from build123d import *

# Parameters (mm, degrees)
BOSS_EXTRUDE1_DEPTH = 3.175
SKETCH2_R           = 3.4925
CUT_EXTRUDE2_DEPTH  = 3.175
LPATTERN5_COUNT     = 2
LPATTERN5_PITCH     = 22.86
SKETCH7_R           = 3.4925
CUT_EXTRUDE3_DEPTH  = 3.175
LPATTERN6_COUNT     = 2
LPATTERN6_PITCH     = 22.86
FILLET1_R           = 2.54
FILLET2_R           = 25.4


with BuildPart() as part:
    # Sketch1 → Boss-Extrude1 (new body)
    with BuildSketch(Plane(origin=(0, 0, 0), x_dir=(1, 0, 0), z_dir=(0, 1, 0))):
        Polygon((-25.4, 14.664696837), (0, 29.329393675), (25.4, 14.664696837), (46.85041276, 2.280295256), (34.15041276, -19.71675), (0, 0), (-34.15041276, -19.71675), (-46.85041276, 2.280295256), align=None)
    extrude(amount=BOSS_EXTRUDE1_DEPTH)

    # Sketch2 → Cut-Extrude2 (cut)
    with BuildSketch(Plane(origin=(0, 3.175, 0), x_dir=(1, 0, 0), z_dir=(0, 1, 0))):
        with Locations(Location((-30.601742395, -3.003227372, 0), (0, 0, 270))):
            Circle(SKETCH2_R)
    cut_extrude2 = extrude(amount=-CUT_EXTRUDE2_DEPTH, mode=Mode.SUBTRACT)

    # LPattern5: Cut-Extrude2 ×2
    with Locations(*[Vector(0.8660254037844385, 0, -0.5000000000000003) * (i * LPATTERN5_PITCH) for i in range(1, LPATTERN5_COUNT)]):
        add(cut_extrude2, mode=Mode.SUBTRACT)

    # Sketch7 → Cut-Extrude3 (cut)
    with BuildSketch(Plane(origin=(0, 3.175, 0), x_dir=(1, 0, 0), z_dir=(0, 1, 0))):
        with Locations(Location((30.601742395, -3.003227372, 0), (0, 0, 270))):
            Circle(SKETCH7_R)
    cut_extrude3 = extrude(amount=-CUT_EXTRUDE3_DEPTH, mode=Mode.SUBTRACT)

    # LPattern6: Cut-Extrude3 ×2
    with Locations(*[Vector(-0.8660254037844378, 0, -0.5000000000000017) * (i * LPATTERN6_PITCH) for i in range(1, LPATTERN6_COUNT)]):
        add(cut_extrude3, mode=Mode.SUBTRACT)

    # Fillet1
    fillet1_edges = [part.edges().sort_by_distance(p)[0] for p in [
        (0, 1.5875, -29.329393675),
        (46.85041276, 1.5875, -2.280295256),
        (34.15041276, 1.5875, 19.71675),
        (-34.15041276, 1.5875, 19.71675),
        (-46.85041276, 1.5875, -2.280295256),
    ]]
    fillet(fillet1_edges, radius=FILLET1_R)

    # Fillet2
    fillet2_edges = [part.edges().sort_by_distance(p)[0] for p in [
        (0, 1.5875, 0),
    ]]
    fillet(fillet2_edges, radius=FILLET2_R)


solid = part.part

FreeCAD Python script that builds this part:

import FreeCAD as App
import Part
import Sketcher
from FreeCAD import Vector
Q = App.Units.Quantity


def edges_at(feature, points):
    """Names of the edges that pass closest to the given points."""
    edges = feature.Shape.Edges
    near = lambda p: min(range(len(edges)), key=lambda i: edges[i].distToShape(Part.Vertex(*p))[0])
    return sorted({f"Edge{near(p) + 1}" for p in points})


def add_polygon(sketch, points):
    """Adds a closed chain of lines whose ends are joined by coincident constraints."""
    first, n = sketch.GeometryCount, len(points)
    for a, b in zip(points, points[1:] + points[:1]):
        sketch.addGeometry(Part.LineSegment(App.Vector(*a, 0), App.Vector(*b, 0)), False)
    for i in range(n):
        sketch.addConstraint(Sketcher.Constraint("Coincident", first + i, 2, first + (i + 1) % n, 1))

doc = App.newDocument("Part")
body = doc.addObject("PartDesign::Body", "Body")

# Sketch on XZ plane
sketch1 = body.newObject("Sketcher::SketchObject", "Sketch")
sketch1.AttachmentSupport = (doc.getObject("XZ_Plane"), [""])
sketch1.MapMode = "FlatFace"
add_polygon(sketch1, [(0, -29), (-25, -15), (-47, -2), (-34, 20), (0, 0), (34, 20), (47, -2), (25, -15)])  # lines 0-7
sketch1.addConstraint([
    Sketcher.Constraint("Coincident", 3, 2, -1, 1),
    Sketcher.Constraint("Symmetric", 2, 2, 4, 2, -2),
    Sketcher.Constraint("Symmetric", 1, 2, 5, 2, -2),
    Sketcher.Constraint("Symmetric", 0, 2, 6, 2, -2),
    Sketcher.Constraint("PointOnObject", 7, 2, -2),
    Sketcher.Constraint("Parallel", 0, 1),
    Sketcher.Constraint("Perpendicular", 1, 2),
    Sketcher.Constraint("Perpendicular", 2, 3),
    Sketcher.Constraint("Distance", 2, Q("1 in")),
    Sketcher.Constraint("DistanceX", 0, 2, -1, 1, Q("1 in")),
    Sketcher.Constraint("Angle", 0, Q("150 deg")),
    Sketcher.Constraint("Distance", 3, Q("1.5525 in")),
])
pad1 = body.newObject("PartDesign::Pad", "Pad")
pad1.Profile = sketch1
pad1.Length = Q("0.125 in")
pad1.Reversed = True

# Sketch on XZ plane
sketch2 = body.newObject("Sketcher::SketchObject", "Sketch001")
sketch2.AttachmentSupport = (doc.getObject("XZ_Plane"), [""])
sketch2.MapMode = "FlatFace"
sketch2.AttachmentOffset = App.Placement(Vector(0, 0, -0.125 * 25.4), App.Rotation())
sketch2.addGeometry(Part.Circle(Vector(-30.6, 3, 0), Vector(0, 0, 1), 3.5), False)
sketch2.addConstraint([
    Sketcher.Constraint("Diameter", 0, Q("0.275 in")),
    Sketcher.Constraint("DistanceX", 0, 3, -1, 1, Q("30.601742 mm")),
    Sketcher.Constraint("DistanceY", -1, 1, 0, 3, Q("3.003227 mm")),
])
pocket1 = body.newObject("PartDesign::Pocket", "Pocket")
pocket1.Profile = sketch2
pocket1.Length = Q("0.125 in")
pocket1.Reversed = True
doc.recompute()

datumline = body.newObject("PartDesign::Line", "DatumLine")
datumline.Placement = App.Placement(Vector(0, 0, 0), App.Rotation(Vector(0, 0, 1), Vector(0.866025404, 0, -0.5)))
linearpattern = body.newObject("PartDesign::LinearPattern", "LinearPattern")
linearpattern.Originals = [pocket1]
linearpattern.Direction = (datumline, [""])
linearpattern.Mode = "offset"
linearpattern.Offset = Q("0.9 in")
linearpattern.Occurrences = 2
body.Tip = linearpattern

# Sketch on XZ plane
sketch3 = body.newObject("Sketcher::SketchObject", "Sketch002")
sketch3.AttachmentSupport = (doc.getObject("XZ_Plane"), [""])
sketch3.MapMode = "FlatFace"
sketch3.AttachmentOffset = App.Placement(Vector(0, 0, -0.125 * 25.4), App.Rotation())
sketch3.addGeometry(Part.Circle(Vector(30.6, 3, 0), Vector(0, 0, 1), 3.5), False)
sketch3.addConstraint([
    Sketcher.Constraint("Diameter", 0, Q("0.275 in")),
    Sketcher.Constraint("DistanceX", -1, 1, 0, 3, Q("30.601742 mm")),
    Sketcher.Constraint("DistanceY", -1, 1, 0, 3, Q("3.003227 mm")),
])
pocket2 = body.newObject("PartDesign::Pocket", "Pocket001")
pocket2.Profile = sketch3
pocket2.Length = Q("0.125 in")
pocket2.Reversed = True
doc.recompute()

datumline2 = body.newObject("PartDesign::Line", "DatumLine001")
datumline2.Placement = App.Placement(Vector(0, 0, 0), App.Rotation(Vector(0, 0, 1), Vector(-0.866025404, 0, -0.5)))
linearpattern2 = body.newObject("PartDesign::LinearPattern", "LinearPattern001")
linearpattern2.Originals = [pocket2]
linearpattern2.Direction = (datumline2, [""])
linearpattern2.Mode = "offset"
linearpattern2.Offset = Q("0.9 in")
linearpattern2.Occurrences = 2
body.Tip = linearpattern2
doc.recompute()

fillet = body.newObject("PartDesign::Fillet", "Fillet")
fillet.Base = (linearpattern2, edges_at(linearpattern2, [
    (0, 1.587, -29.329),
    (46.85, 1.587, -2.28),
    (34.15, 1.587, 19.717),
    (-34.15, 1.587, 19.717),
    (-46.85, 1.587, -2.28),
]))
fillet.Radius = Q("0.1 in")
doc.recompute()

fillet2 = body.newObject("PartDesign::Fillet", "Fillet001")
fillet2.Base = (fillet, edges_at(fillet, [(0, 1.587, 0)]))
fillet2.Radius = Q("1 in")

doc.recompute()
